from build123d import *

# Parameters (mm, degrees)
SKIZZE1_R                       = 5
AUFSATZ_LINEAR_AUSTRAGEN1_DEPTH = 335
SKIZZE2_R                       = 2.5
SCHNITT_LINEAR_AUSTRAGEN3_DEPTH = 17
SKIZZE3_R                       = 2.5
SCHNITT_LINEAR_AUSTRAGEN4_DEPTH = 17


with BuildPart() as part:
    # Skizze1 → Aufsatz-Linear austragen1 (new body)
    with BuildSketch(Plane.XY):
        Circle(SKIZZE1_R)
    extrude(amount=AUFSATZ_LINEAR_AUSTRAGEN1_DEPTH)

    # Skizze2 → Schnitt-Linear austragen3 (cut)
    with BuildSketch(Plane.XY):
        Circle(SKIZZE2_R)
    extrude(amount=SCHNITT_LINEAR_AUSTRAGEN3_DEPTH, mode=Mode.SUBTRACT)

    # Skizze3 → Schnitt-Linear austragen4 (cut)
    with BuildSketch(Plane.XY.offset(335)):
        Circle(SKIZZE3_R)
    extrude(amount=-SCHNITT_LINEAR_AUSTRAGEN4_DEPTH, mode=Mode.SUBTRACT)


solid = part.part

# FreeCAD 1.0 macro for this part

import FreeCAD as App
import Part
import Sketcher
from FreeCAD import Vector
Q = App.Units.Quantity

doc = App.newDocument("Part")
body = doc.addObject("PartDesign::Body", "Body")

# Sketch on XY plane
sketch1 = doc.addObject("Sketcher::SketchObject", "Sketch")
body.addObject(sketch1)
sketch1.AttachmentSupport = (doc.XY_Plane, [""])
sketch1.MapMode = "FlatFace"
sketch1.addGeometry(Part.Circle(Vector(0, 0, 0), Vector(0, 0, 1), 5), False)
sketch1.addConstraint([
    Sketcher.Constraint("Coincident", 0, 3, -1, 1),
    Sketcher.Constraint("Diameter", 0, Q("10 mm")),
])
pad1 = doc.addObject("PartDesign::Pad", "Pad")
body.addObject(pad1)
pad1.Profile = sketch1
pad1.Length = 335

# Sketch on XY plane
sketch2 = doc.addObject("Sketcher::SketchObject", "Sketch001")
body.addObject(sketch2)
sketch2.AttachmentSupport = (doc.XY_Plane, [""])
sketch2.MapMode = "FlatFace"
sketch2.addGeometry(Part.Circle(Vector(0, 0, 0), Vector(0, 0, 1), 2.5), False)
sketch2.addConstraint([
    Sketcher.Constraint("Coincident", 0, 3, -1, 1),
    Sketcher.Constraint("Diameter", 0, Q("5 mm")),
])
pocket1 = doc.addObject("PartDesign::Pocket", "Pocket")
body.addObject(pocket1)
pocket1.Profile = sketch2
pocket1.Length = 17
pocket1.Reversed = True

# Sketch on XY plane
sketch3 = doc.addObject("Sketcher::SketchObject", "Sketch002")
body.addObject(sketch3)
sketch3.AttachmentSupport = (doc.XY_Plane, [""])
sketch3.MapMode = "FlatFace"
sketch3.AttachmentOffset = App.Placement(Vector(0, 0, 335), App.Rotation())
sketch3.addGeometry(Part.Circle(Vector(0, 0, 0), Vector(0, 0, 1), 2.5), False)
sketch3.addConstraint([
    Sketcher.Constraint("Coincident", 0, 3, -1, 1),
    Sketcher.Constraint("Diameter", 0, Q("5 mm")),
])
pocket2 = doc.addObject("PartDesign::Pocket", "Pocket001")
body.addObject(pocket2)
pocket2.Profile = sketch3
pocket2.Length = 17

doc.recompute()
